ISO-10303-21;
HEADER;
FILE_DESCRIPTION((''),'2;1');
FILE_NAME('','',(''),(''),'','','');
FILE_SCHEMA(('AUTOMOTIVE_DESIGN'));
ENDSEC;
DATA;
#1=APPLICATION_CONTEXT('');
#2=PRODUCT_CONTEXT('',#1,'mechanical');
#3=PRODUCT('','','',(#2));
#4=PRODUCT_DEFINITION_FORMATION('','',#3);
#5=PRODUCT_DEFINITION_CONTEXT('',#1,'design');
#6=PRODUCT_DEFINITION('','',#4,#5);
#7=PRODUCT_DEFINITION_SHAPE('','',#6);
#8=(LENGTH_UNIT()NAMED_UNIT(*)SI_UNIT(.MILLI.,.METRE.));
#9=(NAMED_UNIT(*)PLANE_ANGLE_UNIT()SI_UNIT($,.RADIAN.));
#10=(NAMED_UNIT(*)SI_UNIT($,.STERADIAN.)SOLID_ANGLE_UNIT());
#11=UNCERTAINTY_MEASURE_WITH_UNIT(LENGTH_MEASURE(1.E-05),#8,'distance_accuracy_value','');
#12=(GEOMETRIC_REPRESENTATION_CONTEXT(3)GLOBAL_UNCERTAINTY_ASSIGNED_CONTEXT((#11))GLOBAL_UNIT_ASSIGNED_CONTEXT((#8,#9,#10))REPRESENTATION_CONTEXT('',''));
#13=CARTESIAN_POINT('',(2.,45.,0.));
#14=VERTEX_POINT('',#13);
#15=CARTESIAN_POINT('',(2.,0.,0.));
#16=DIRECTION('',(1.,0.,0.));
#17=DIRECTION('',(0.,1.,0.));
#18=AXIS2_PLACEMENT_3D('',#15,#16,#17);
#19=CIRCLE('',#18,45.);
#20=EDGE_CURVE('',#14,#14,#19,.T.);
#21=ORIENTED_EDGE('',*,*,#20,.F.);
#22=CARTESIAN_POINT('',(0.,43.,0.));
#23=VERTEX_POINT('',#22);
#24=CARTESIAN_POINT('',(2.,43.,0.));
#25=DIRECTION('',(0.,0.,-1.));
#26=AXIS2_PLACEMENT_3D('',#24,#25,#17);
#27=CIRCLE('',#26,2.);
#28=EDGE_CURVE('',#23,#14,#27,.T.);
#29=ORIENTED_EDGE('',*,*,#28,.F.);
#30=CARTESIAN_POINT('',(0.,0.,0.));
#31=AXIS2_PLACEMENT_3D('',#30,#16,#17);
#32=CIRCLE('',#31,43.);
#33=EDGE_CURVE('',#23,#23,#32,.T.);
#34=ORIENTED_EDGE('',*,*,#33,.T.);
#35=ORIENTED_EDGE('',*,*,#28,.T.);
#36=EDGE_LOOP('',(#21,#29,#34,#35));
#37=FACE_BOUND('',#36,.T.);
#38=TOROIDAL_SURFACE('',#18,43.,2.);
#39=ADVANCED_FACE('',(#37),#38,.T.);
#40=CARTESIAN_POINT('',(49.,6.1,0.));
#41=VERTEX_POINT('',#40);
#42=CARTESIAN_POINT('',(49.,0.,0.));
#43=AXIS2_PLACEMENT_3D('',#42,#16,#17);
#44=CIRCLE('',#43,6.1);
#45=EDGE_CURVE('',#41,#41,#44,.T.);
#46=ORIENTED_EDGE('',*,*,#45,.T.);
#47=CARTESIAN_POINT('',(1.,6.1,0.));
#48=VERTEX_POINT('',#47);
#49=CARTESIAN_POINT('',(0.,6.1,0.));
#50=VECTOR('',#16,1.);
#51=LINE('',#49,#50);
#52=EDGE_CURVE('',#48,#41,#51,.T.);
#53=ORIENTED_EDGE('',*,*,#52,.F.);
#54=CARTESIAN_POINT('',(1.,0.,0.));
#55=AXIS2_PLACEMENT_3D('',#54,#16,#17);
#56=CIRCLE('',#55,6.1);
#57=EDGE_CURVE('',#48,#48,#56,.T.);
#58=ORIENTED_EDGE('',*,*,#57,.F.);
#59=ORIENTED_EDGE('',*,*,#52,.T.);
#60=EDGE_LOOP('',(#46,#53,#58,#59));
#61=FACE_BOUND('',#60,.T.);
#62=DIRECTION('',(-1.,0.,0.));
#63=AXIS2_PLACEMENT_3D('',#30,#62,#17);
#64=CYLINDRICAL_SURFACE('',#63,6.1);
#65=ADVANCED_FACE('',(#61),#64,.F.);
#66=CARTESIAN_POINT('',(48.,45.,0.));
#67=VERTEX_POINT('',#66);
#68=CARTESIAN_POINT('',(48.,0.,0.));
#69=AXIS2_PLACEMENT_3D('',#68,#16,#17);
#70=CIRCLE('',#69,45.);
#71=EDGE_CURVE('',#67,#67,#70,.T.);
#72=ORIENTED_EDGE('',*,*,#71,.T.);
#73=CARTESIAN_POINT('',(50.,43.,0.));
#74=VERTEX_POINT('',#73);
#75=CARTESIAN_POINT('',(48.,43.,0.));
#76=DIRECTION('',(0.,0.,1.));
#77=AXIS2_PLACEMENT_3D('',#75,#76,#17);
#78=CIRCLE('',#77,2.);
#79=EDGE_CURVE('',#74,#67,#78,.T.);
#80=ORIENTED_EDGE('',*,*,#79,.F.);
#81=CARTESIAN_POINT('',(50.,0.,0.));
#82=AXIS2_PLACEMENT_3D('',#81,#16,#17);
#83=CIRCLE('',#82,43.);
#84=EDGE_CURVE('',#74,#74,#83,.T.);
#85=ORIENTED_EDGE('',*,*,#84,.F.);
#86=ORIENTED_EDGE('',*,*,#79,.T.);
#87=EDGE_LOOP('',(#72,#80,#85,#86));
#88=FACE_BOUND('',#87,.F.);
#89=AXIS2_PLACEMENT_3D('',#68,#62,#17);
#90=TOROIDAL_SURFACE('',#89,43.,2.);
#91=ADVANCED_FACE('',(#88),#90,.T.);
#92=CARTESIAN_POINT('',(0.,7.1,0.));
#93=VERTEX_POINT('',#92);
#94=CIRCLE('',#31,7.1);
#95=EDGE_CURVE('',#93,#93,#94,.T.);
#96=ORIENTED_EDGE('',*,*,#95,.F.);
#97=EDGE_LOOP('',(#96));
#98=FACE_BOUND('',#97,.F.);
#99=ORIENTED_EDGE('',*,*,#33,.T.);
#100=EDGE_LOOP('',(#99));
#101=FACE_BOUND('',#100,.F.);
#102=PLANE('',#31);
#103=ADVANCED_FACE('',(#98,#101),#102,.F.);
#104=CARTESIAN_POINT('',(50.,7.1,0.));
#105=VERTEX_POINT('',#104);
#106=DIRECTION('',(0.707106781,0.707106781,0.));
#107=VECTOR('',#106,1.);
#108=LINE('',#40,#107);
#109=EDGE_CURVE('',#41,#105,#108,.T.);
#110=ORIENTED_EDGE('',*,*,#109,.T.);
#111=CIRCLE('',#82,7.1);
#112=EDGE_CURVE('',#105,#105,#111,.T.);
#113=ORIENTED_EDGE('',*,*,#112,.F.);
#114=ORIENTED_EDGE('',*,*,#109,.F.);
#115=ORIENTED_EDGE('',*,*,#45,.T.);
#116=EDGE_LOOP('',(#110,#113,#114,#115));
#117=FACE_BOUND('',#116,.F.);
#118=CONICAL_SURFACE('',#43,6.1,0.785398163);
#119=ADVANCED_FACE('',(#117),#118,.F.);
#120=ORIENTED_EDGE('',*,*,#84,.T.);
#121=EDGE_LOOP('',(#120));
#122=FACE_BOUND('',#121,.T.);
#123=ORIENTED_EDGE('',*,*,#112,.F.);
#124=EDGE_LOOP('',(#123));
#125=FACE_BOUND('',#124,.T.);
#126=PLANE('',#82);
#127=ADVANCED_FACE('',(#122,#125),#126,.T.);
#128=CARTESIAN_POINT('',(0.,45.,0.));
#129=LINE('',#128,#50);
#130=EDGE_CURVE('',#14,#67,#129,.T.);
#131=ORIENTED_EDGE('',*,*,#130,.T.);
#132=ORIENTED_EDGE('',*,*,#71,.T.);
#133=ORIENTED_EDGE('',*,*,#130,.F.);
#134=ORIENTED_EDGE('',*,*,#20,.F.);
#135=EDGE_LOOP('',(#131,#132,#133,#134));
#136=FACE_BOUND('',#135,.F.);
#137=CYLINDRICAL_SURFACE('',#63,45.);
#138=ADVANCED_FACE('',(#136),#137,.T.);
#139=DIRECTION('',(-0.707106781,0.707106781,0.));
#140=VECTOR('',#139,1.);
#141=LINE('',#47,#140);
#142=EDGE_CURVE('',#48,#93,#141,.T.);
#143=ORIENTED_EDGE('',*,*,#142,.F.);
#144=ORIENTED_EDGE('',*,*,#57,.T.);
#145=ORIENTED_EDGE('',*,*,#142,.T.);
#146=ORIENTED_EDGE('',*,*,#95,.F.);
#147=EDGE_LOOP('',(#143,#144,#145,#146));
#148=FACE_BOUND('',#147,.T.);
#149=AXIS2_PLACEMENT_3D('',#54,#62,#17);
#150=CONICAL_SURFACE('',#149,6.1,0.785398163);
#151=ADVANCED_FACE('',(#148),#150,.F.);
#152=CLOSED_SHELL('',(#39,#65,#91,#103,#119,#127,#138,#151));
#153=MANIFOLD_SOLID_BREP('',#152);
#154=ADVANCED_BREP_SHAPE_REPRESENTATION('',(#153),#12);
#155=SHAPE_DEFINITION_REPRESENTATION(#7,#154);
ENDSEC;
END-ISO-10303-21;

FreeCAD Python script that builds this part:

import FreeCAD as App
import Part
import Sketcher
Q = App.Units.Quantity


def edges_at(feature, points):
    """Names of the edges that pass closest to the given points."""
    edges = feature.Shape.Edges
    near = lambda p: min(range(len(edges)), key=lambda i: edges[i].distToShape(Part.Vertex(*p))[0])
    return sorted({f"Edge{near(p) + 1}" for p in points})

doc = App.newDocument("Part")
body = doc.addObject("PartDesign::Body", "Body")

# Sketch on YZ plane
sketch1 = body.newObject("Sketcher::SketchObject", "Sketch")
sketch1.AttachmentSupport = (doc.getObject("YZ_Plane"), [""])
sketch1.MapMode = "FlatFace"
sketch1.addGeometry(Part.Circle(App.Vector(0, 0, 0), App.Vector(0, 0, 1), 45), False)
sketch1.addGeometry(Part.Circle(App.Vector(0, 0, 0), App.Vector(0, 0, 1), 6.1), False)
sketch1.addConstraint(Sketcher.Constraint("Coincident", 0, 3, -1, 1))
sketch1.addConstraint(Sketcher.Constraint("Coincident", 1, 3, -1, 1))
sketch1.addConstraint(Sketcher.Constraint("Diameter", 0, Q("90 mm")))
sketch1.addConstraint(Sketcher.Constraint("Diameter", 1, Q("12.2 mm")))
pad1 = body.newObject("PartDesign::Pad", "Pad")
pad1.Profile = sketch1
pad1.Length = 50
doc.recompute()

chamfer = body.newObject("PartDesign::Chamfer", "Chamfer")
chamfer.Base = (pad1, edges_at(pad1, [(50, -6.1, 0), (0, -6.1, 0)]))
chamfer.Size = 1
doc.recompute()

fillet = body.newObject("PartDesign::Fillet", "Fillet")
fillet.Base = (chamfer, edges_at(chamfer, [(0, -45, 0), (50, -45, 0)]))
fillet.Radius = 2

doc.recompute()
